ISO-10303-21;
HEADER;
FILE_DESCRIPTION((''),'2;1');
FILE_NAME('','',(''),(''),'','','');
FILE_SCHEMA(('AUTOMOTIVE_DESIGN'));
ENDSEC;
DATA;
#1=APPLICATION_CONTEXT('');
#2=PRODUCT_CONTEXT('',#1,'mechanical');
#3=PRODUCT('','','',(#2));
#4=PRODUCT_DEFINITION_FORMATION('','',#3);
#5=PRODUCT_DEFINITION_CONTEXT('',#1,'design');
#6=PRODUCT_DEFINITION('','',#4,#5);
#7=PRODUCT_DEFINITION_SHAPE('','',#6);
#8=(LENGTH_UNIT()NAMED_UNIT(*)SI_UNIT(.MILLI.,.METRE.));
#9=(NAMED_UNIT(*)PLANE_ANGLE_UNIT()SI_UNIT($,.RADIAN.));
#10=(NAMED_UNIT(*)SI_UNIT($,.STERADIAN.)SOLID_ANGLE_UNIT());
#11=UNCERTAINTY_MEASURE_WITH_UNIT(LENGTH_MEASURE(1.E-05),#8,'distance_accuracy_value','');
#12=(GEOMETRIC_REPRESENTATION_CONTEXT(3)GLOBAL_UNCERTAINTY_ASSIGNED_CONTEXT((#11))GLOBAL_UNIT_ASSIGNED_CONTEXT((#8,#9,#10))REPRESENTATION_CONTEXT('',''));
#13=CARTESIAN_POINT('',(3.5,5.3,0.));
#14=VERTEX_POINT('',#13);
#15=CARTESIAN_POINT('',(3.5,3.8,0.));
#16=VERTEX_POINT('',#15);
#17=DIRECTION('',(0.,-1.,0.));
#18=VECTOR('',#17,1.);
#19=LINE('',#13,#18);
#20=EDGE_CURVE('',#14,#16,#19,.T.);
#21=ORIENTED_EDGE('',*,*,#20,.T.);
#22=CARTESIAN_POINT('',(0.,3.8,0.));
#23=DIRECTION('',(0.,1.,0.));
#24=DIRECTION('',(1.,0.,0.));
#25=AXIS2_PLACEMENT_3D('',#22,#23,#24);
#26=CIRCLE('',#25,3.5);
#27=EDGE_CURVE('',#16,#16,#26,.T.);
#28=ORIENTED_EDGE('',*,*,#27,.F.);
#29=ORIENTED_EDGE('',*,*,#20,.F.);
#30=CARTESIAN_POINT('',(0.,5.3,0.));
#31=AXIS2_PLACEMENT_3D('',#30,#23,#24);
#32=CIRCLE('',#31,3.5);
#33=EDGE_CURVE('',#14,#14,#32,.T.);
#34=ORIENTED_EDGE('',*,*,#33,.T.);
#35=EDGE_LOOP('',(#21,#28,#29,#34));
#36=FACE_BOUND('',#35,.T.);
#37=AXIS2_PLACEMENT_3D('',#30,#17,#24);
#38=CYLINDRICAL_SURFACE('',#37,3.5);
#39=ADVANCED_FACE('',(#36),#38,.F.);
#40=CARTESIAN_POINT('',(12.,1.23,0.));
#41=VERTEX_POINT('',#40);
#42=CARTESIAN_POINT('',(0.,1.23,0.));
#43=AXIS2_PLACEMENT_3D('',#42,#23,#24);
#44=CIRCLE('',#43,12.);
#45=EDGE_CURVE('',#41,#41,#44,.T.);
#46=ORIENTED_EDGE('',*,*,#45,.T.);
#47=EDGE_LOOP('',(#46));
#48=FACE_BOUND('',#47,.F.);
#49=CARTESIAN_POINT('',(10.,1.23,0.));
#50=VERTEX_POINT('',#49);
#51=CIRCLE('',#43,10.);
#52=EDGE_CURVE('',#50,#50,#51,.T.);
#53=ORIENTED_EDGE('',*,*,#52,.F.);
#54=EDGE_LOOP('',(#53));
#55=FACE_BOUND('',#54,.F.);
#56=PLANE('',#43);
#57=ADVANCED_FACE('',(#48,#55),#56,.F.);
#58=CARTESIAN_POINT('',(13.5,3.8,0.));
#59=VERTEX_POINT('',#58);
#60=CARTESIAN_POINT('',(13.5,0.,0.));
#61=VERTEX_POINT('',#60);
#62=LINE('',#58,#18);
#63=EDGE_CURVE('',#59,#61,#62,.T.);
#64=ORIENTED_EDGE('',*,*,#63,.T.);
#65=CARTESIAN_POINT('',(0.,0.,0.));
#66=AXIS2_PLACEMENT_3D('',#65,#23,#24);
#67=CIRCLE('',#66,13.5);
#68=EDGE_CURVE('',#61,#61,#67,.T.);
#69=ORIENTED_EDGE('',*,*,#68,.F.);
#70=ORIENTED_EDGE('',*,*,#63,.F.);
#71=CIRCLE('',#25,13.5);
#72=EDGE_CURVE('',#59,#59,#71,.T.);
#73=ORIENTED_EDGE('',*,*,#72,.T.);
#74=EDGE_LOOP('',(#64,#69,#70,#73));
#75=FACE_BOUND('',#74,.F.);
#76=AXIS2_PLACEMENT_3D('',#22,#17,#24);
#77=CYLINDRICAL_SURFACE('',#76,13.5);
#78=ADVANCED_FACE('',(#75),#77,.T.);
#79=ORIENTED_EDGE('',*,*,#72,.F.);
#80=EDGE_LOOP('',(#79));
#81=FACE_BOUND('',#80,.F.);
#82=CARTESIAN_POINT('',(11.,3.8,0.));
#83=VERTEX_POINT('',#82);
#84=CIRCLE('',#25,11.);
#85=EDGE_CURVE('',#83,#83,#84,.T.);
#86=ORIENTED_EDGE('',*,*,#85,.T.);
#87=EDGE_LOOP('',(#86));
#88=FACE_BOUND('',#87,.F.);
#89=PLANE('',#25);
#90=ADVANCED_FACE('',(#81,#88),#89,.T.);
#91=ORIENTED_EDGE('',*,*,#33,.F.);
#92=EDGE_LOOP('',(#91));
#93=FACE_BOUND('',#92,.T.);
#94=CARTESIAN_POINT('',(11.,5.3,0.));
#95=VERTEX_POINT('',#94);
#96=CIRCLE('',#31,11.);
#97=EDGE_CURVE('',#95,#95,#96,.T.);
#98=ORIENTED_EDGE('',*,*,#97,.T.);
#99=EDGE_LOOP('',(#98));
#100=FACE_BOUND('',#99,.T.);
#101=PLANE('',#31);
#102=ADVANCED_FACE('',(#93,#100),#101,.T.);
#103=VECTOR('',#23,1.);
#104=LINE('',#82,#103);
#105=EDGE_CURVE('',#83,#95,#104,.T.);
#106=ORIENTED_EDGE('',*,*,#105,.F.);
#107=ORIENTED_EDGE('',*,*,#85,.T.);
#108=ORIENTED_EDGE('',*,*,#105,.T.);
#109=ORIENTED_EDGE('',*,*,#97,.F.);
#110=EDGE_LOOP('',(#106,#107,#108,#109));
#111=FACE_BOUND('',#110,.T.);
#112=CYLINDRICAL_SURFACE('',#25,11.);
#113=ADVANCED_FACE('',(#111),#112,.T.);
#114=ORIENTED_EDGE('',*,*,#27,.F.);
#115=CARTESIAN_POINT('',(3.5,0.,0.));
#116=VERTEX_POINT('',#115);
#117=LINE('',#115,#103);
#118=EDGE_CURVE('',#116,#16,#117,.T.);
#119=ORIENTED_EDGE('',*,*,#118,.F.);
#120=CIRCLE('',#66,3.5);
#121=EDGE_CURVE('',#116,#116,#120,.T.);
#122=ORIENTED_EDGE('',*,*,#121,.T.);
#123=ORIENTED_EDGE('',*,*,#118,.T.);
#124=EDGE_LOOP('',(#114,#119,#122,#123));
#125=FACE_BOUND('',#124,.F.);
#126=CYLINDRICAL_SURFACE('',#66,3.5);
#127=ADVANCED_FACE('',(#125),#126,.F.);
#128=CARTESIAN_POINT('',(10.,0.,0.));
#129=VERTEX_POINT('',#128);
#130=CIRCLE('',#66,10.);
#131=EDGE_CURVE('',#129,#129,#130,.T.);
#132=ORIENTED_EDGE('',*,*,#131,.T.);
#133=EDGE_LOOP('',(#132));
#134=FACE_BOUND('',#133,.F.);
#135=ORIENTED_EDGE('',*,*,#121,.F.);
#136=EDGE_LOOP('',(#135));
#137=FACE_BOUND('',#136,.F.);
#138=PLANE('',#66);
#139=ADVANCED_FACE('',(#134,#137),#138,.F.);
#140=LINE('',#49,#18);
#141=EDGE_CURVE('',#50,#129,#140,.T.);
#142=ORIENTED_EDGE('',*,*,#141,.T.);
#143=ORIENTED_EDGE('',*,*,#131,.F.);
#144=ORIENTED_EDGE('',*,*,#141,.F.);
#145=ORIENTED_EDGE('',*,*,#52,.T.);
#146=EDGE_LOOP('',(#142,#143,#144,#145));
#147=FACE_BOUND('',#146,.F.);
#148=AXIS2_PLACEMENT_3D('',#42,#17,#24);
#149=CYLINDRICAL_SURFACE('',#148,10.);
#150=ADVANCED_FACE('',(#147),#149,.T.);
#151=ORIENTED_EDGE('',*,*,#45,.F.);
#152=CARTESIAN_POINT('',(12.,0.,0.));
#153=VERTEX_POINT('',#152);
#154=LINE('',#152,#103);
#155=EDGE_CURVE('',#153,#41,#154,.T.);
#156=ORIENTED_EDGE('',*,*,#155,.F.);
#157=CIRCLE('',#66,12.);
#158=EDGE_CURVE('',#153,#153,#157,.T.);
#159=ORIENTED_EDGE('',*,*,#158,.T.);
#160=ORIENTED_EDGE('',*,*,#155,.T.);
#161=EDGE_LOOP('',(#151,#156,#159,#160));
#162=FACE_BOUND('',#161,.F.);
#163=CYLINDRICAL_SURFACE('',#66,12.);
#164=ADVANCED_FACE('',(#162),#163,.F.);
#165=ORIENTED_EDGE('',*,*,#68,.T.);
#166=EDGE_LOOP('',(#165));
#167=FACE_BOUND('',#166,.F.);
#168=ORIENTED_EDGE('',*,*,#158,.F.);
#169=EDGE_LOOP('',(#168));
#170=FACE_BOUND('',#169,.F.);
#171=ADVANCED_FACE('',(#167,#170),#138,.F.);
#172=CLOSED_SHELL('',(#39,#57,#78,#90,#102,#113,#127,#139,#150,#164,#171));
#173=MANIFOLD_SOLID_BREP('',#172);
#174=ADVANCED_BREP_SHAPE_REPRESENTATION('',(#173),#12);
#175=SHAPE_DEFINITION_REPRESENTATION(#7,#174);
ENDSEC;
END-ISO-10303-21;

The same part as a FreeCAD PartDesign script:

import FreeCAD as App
import Part
import Sketcher

V = App.Vector
Q = App.Units.Quantity

doc = App.newDocument("Part")
params = doc.addObject("Spreadsheet::Sheet", "Params")
for row, (alias, value) in enumerate([
    ("sketch1_width", "2 mm"),
    ("sketch1_width2", "1.5 mm"),
    ("sketch1_height", "3.8 mm"),
    ("sketch1_height2", "1.23 mm"),
    ("sketch1_width3", "6.5 mm"),
    ("revolution_angle", "360 deg"),
], start=1):
    params.set(f"A{row}", alias)
    params.set(f"B{row}", "=" + value)
    params.setAlias(f"B{row}", alias)

body = doc.addObject("PartDesign::Body", "Body")

# Sketch on XY plane
sketch1 = body.newObject("Sketcher::SketchObject", "Sketch")
sketch1.AttachmentSupport = (doc.getObject("XY_Plane"), [""])
sketch1.MapMode = "FlatFace"
sketch1.addGeometry([
    Part.LineSegment(V(3.5, 0, 0), V(10, 0, 0)),  # 0
    Part.LineSegment(V(10, 0, 0), V(10, 1.2, 0)),  # 1
    Part.LineSegment(V(10, 1.2, 0), V(12, 1.2, 0)),  # 2
    Part.LineSegment(V(12, 1.2, 0), V(12, 0, 0)),  # 3
    Part.LineSegment(V(12, 0, 0), V(13.5, 0, 0)),  # 4
    Part.LineSegment(V(13.5, 0, 0), V(13.5, 3.8, 0)),  # 5
    Part.LineSegment(V(13.5, 3.8, 0), V(11, 3.8, 0)),  # 6
    Part.LineSegment(V(11, 3.8, 0), V(11, 5.3, 0)),  # 7
    Part.LineSegment(V(11, 5.3, 0), V(3.5, 5.3, 0)),  # 8
    Part.LineSegment(V(3.5, 5.3, 0), V(3.5, 0, 0)),  # 9
], False)
sketch1.addConstraint([
    Sketcher.Constraint("Coincident", 0, 2, 1, 1),
    Sketcher.Constraint("Coincident", 1, 2, 2, 1),
    Sketcher.Constraint("Coincident", 2, 2, 3, 1),
    Sketcher.Constraint("Coincident", 3, 2, 4, 1),
    Sketcher.Constraint("Coincident", 4, 2, 5, 1),
    Sketcher.Constraint("Coincident", 5, 2, 6, 1),
    Sketcher.Constraint("Coincident", 6, 2, 7, 1),
    Sketcher.Constraint("Coincident", 7, 2, 8, 1),
    Sketcher.Constraint("Coincident", 8, 2, 9, 1),
    Sketcher.Constraint("Coincident", 9, 2, 0, 1),
    Sketcher.Constraint("Horizontal", 0),
    Sketcher.Constraint("Vertical", 1),
    Sketcher.Constraint("Horizontal", 2),
    Sketcher.Constraint("Vertical", 3),
    Sketcher.Constraint("Horizontal", 4),
    Sketcher.Constraint("Vertical", 5),
    Sketcher.Constraint("Horizontal", 6),
    Sketcher.Constraint("Vertical", 7),
    Sketcher.Constraint("Horizontal", 8),
    Sketcher.Constraint("Vertical", 9),
    Sketcher.Constraint("PointOnObject", 0, 2, -1),
    Sketcher.Constraint("PointOnObject", 3, 2, -1),
    Sketcher.Constraint("Equal", 4, 7),
    Sketcher.Constraint("DistanceX", 2, 1, 2, 2, Q("2 mm")),
    Sketcher.Constraint("DistanceX", 4, 1, 4, 2, Q("1.5 mm")),
    Sketcher.Constraint("DistanceY", 5, 1, 5, 2, Q("3.8 mm")),
    Sketcher.Constraint("DistanceY", 1, 1, 1, 2, Q("1.23 mm")),
    Sketcher.Constraint("DistanceX", 0, 1, 0, 2, Q("6.5 mm")),
    Sketcher.Constraint("DistanceX", 6, 2, 6, 1, Q("2.5 mm")),
    Sketcher.Constraint("DistanceX", -1, 1, 0, 2, Q("10 mm")),
])
sketch1.setExpression("Constraints[23]", "Params.sketch1_width")
sketch1.setExpression("Constraints[24]", "Params.sketch1_width2")
sketch1.setExpression("Constraints[25]", "Params.sketch1_height")
sketch1.setExpression("Constraints[26]", "Params.sketch1_height2")
sketch1.setExpression("Constraints[27]", "Params.sketch1_width3")
revolution = body.newObject("PartDesign::Revolution", "Revolution")
revolution.Profile = sketch1
revolution.ReferenceAxis = (sketch1, ["V_Axis"])
revolution.setExpression("Angle", "Params.revolution_angle")

doc.recompute()
